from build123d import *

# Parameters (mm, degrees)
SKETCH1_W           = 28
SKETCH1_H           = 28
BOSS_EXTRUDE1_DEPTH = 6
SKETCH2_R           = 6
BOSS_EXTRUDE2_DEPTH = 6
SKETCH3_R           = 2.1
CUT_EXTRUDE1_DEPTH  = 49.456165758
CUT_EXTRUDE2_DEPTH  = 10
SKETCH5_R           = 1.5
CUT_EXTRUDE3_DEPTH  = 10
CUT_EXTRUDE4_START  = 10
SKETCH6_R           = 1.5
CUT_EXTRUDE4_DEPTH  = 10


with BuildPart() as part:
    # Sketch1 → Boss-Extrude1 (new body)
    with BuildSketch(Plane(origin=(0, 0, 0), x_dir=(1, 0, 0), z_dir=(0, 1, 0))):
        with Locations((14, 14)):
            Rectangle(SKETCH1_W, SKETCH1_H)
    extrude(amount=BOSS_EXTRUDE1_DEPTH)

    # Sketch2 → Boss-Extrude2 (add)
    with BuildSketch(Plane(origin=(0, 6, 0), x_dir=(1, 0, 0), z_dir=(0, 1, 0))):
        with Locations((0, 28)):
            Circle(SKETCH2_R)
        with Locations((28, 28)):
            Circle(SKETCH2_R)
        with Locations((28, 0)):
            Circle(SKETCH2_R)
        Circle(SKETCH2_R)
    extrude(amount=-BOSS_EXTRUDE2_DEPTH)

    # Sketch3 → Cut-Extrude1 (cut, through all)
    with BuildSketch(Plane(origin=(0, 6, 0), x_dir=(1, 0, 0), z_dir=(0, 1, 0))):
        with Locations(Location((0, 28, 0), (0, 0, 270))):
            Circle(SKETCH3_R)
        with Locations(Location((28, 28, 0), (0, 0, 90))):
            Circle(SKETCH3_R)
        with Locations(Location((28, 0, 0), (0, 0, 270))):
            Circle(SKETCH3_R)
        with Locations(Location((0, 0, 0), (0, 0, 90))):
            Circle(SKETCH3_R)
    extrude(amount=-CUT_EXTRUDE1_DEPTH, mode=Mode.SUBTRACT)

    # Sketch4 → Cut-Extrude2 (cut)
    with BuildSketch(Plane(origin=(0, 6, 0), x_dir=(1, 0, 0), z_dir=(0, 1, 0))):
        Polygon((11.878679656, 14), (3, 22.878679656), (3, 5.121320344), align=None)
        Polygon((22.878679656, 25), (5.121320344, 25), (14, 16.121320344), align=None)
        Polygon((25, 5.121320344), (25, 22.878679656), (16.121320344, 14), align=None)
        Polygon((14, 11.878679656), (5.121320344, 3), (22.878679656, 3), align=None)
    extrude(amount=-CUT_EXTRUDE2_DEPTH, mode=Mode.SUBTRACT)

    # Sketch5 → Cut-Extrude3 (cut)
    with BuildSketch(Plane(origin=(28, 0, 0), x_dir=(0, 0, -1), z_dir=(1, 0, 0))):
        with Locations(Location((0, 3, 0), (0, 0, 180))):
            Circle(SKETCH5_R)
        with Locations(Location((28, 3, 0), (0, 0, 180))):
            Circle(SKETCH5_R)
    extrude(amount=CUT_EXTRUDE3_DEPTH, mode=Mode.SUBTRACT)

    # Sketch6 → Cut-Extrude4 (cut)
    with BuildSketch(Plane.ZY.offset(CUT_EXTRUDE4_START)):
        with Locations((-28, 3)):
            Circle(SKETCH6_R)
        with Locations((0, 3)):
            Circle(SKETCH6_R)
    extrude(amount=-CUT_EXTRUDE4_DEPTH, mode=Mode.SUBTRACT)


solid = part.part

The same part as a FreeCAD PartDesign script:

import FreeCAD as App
import Part
import Sketcher

doc = App.newDocument("Part")
body = doc.addObject("PartDesign::Body", "Body")

# Sketch on XZ plane
sketch1 = body.newObject("Sketcher::SketchObject", "Sketch")
sketch1.AttachmentSupport = (doc.getObject("XZ_Plane"), [""])
sketch1.MapMode = "FlatFace"
sketch1.addGeometry([
    Part.LineSegment(App.Vector(0, -28, 0), App.Vector(0, 0, 0)),
    Part.LineSegment(App.Vector(0, 0, 0), App.Vector(28, 0, 0)),
    Part.LineSegment(App.Vector(28, 0, 0), App.Vector(28, -28, 0)),
    Part.LineSegment(App.Vector(28, -28, 0), App.Vector(0, -28, 0)),
], False)
sketch1.addConstraint([
    Sketcher.Constraint("Coincident", 0, 2, 1, 1),
    Sketcher.Constraint("Coincident", 1, 2, 2, 1),
    Sketcher.Constraint("Coincident", 2, 2, 3, 1),
    Sketcher.Constraint("Coincident", 3, 2, 0, 1),
    Sketcher.Constraint("Vertical", 0),
    Sketcher.Constraint("Horizontal", 1),
    Sketcher.Constraint("Vertical", 2),
    Sketcher.Constraint("Horizontal", 3),
    Sketcher.Constraint("Coincident", 0, 2, -1, 1),
    Sketcher.Constraint("Equal", 3, 0),
    Sketcher.Constraint("DistanceX", 1, 1, 1, 2, 28.0),
])
pad1 = body.newObject("PartDesign::Pad", "Pad")
pad1.Profile = sketch1
pad1.Length = 6
pad1.Reversed = True

# Sketch on XZ plane
sketch2 = body.newObject("Sketcher::SketchObject", "Sketch001")
sketch2.AttachmentSupport = (doc.getObject("XZ_Plane"), [""])
sketch2.MapMode = "FlatFace"
sketch2.AttachmentOffset = App.Placement(App.Vector(0, 0, -6), App.Rotation())
sketch2.addGeometry([
    Part.Circle(App.Vector(0, -28, 0), App.Vector(0, 0, 1), 6),
    Part.Circle(App.Vector(28, -28, 0), App.Vector(0, 0, 1), 6),
    Part.Circle(App.Vector(28, 0, 0), App.Vector(0, 0, 1), 6),
    Part.Circle(App.Vector(0, 0, 0), App.Vector(0, 0, 1), 6),
], False)
sketch2.addConstraint([
    Sketcher.Constraint("Coincident", 3, 3, -1, 1),
    Sketcher.Constraint("Equal", 0, 1),
    Sketcher.Constraint("Equal", 1, 2),
    Sketcher.Constraint("Equal", 2, 3),
    Sketcher.Constraint("PointOnObject", 0, 3, -2),
    Sketcher.Constraint("PointOnObject", 2, 3, -1),
    Sketcher.Constraint("Horizontal", 0, 3, 1, 3),
    Sketcher.Constraint("Vertical", 1, 3, 2, 3),
    Sketcher.Constraint("Diameter", 0, 12.0),
    Sketcher.Constraint("DistanceY", 0, 3, -1, 1, 28.0),
    Sketcher.Constraint("DistanceX", -1, 1, 1, 3, 28.0),
])
pad2 = body.newObject("PartDesign::Pad", "Pad001")
pad2.Profile = sketch2
pad2.Length = 6

# Sketch on XZ plane
sketch3 = body.newObject("Sketcher::SketchObject", "Sketch002")
sketch3.AttachmentSupport = (doc.getObject("XZ_Plane"), [""])
sketch3.MapMode = "FlatFace"
sketch3.AttachmentOffset = App.Placement(App.Vector(0, 0, -6), App.Rotation())
sketch3.addGeometry([
    Part.Circle(App.Vector(0, -28, 0), App.Vector(0, 0, 1), 2.1),
    Part.Circle(App.Vector(28, -28, 0), App.Vector(0, 0, 1), 2.1),
    Part.Circle(App.Vector(28, 0, 0), App.Vector(0, 0, 1), 2.1),
    Part.Circle(App.Vector(0, 0, 0), App.Vector(0, 0, 1), 2.1),
], False)
sketch3.addConstraint([
    Sketcher.Constraint("Coincident", 3, 3, -1, 1),
    Sketcher.Constraint("Equal", 0, 1),
    Sketcher.Constraint("Equal", 1, 2),
    Sketcher.Constraint("Equal", 2, 3),
    Sketcher.Constraint("PointOnObject", 0, 3, -2),
    Sketcher.Constraint("PointOnObject", 2, 3, -1),
    Sketcher.Constraint("Horizontal", 0, 3, 1, 3),
    Sketcher.Constraint("Vertical", 1, 3, 2, 3),
    Sketcher.Constraint("Diameter", 0, 4.2),
    Sketcher.Constraint("DistanceY", 0, 3, -1, 1, 28.0),
    Sketcher.Constraint("DistanceX", -1, 1, 1, 3, 28.0),
])
pocket1 = body.newObject("PartDesign::Pocket", "Pocket")
pocket1.Profile = sketch3
pocket1.Type = "ThroughAll"
pocket1.Reversed = True

# Sketch on XZ plane
sketch4 = body.newObject("Sketcher::SketchObject", "Sketch003")
sketch4.AttachmentSupport = (doc.getObject("XZ_Plane"), [""])
sketch4.MapMode = "FlatFace"
sketch4.AttachmentOffset = App.Placement(App.Vector(0, 0, -6), App.Rotation())
sketch4.addGeometry([
    Part.LineSegment(App.Vector(12, -14, 0), App.Vector(3, -23, 0)),  # 0
    Part.LineSegment(App.Vector(3, -23, 0), App.Vector(3, -5, 0)),  # 1
    Part.LineSegment(App.Vector(3, -5, 0), App.Vector(12, -14, 0)),  # 2
    Part.LineSegment(App.Vector(23, -25, 0), App.Vector(5, -25, 0)),  # 3
    Part.LineSegment(App.Vector(5, -25, 0), App.Vector(14, -16, 0)),  # 4
    Part.LineSegment(App.Vector(14, -16, 0), App.Vector(23, -25, 0)),  # 5
    Part.LineSegment(App.Vector(25, -5, 0), App.Vector(25, -23, 0)),  # 6
    Part.LineSegment(App.Vector(25, -23, 0), App.Vector(16, -14, 0)),  # 7
    Part.LineSegment(App.Vector(16, -14, 0), App.Vector(25, -5, 0)),  # 8
    Part.LineSegment(App.Vector(14, -12, 0), App.Vector(5, -3, 0)),  # 9
    Part.LineSegment(App.Vector(5, -3, 0), App.Vector(23, -3, 0)),  # 10
    Part.LineSegment(App.Vector(23, -3, 0), App.Vector(14, -12, 0)),  # 11
], False)
sketch4.addConstraint([
    Sketcher.Constraint("Coincident", 0, 2, 1, 1),
    Sketcher.Constraint("Coincident", 1, 2, 2, 1),
    Sketcher.Constraint("Coincident", 2, 2, 0, 1),
    Sketcher.Constraint("Coincident", 3, 2, 4, 1),
    Sketcher.Constraint("Coincident", 4, 2, 5, 1),
    Sketcher.Constraint("Coincident", 5, 2, 3, 1),
    Sketcher.Constraint("Coincident", 6, 2, 7, 1),
    Sketcher.Constraint("Coincident", 7, 2, 8, 1),
    Sketcher.Constraint("Coincident", 8, 2, 6, 1),
    Sketcher.Constraint("Coincident", 9, 2, 10, 1),
    Sketcher.Constraint("Coincident", 10, 2, 11, 1),
    Sketcher.Constraint("Coincident", 11, 2, 9, 1),
    Sketcher.Constraint("Vertical", 1),
    Sketcher.Constraint("Horizontal", 3),
    Sketcher.Constraint("Vertical", 6),
    Sketcher.Constraint("Horizontal", 10),
    Sketcher.Constraint("Perpendicular", 0, 2),
    Sketcher.Constraint("Perpendicular", 2, 4),
    Sketcher.Constraint("Perpendicular", 4, 5),
    Sketcher.Constraint("Parallel", 5, 7),
    Sketcher.Constraint("Perpendicular", 7, 8),
    Sketcher.Constraint("Perpendicular", 8, 9),
    Sketcher.Constraint("Perpendicular", 9, 11),
    Sketcher.Constraint("Horizontal", 0, 2, 6, 2),
    Sketcher.Constraint("Horizontal", 2, 2, 7, 2),
    Sketcher.Constraint("Horizontal", 1, 2, 8, 2),
    Sketcher.Constraint("Vertical", 3, 2, 9, 2),
    Sketcher.Constraint("Vertical", 5, 2, 10, 2),
    Sketcher.Constraint("Equal", 10, 1),
    Sketcher.Constraint("DistanceX", -1, 1, 0, 2, 3.0),
    Sketcher.Constraint("DistanceY", 2, 2, -1, 1, 14.0),
    Sketcher.Constraint("DistanceY", 3, 2, -1, 1, 25.0),
    Sketcher.Constraint("DistanceX", -1, 1, 4, 2, 14.0),
    Sketcher.Constraint("DistanceX", -1, 1, 6, 2, 25.0),
    Sketcher.Constraint("DistanceY", 9, 2, -1, 1, 3.0),
    Sketcher.Constraint("DistanceX", 3, 2, 3, 1, 17.757359),
])
pocket2 = body.newObject("PartDesign::Pocket", "Pocket001")
pocket2.Profile = sketch4
pocket2.Length = 10
pocket2.Reversed = True

# Sketch on YZ plane
sketch5 = body.newObject("Sketcher::SketchObject", "Sketch004")
sketch5.AttachmentSupport = (doc.getObject("YZ_Plane"), [""])
sketch5.MapMode = "FlatFace"
sketch5.AttachmentOffset = App.Placement(App.Vector(0, 0, 28), App.Rotation())
sketch5.addGeometry([
    Part.Circle(App.Vector(3, 0, 0), App.Vector(0, 0, 1), 1.5),
    Part.Circle(App.Vector(3, -28, 0), App.Vector(0, 0, 1), 1.5),
], False)
sketch5.addConstraint([
    Sketcher.Constraint("Equal", 0, 1),
    Sketcher.Constraint("PointOnObject", 0, 3, -1),
    Sketcher.Constraint("Vertical", 0, 3, 1, 3),
    Sketcher.Constraint("Diameter", 0, 3.0),
    Sketcher.Constraint("DistanceX", -1, 1, 0, 3, 3.0),
    Sketcher.Constraint("DistanceY", 1, 3, -1, 1, 28.0),
])
pocket3 = body.newObject("PartDesign::Pocket", "Pocket002")
pocket3.Profile = sketch5
pocket3.Length = 10
pocket3.Reversed = True

# Sketch on YZ plane
sketch6 = body.newObject("Sketcher::SketchObject", "Sketch005")
sketch6.AttachmentSupport = (doc.getObject("YZ_Plane"), [""])
sketch6.MapMode = "FlatFace"
sketch6.AttachmentOffset = App.Placement(App.Vector(0, 0, -10), App.Rotation())
sketch6.addGeometry([
    Part.Circle(App.Vector(3, -28, 0), App.Vector(0, 0, 1), 1.5),
    Part.Circle(App.Vector(3, 0, 0), App.Vector(0, 0, 1), 1.5),
], False)
sketch6.addConstraint([
    Sketcher.Constraint("Equal", 0, 1),
    Sketcher.Constraint("PointOnObject", 1, 3, -1),
    Sketcher.Constraint("Vertical", 0, 3, 1, 3),
    Sketcher.Constraint("Diameter", 0, 3.0),
    Sketcher.Constraint("DistanceX", -1, 1, 0, 3, 3.0),
    Sketcher.Constraint("DistanceY", 0, 3, -1, 1, 28.0),
])
pocket4 = body.newObject("PartDesign::Pocket", "Pocket003")
pocket4.Profile = sketch6
pocket4.Length = 10
pocket4.Reversed = True

doc.recompute()
